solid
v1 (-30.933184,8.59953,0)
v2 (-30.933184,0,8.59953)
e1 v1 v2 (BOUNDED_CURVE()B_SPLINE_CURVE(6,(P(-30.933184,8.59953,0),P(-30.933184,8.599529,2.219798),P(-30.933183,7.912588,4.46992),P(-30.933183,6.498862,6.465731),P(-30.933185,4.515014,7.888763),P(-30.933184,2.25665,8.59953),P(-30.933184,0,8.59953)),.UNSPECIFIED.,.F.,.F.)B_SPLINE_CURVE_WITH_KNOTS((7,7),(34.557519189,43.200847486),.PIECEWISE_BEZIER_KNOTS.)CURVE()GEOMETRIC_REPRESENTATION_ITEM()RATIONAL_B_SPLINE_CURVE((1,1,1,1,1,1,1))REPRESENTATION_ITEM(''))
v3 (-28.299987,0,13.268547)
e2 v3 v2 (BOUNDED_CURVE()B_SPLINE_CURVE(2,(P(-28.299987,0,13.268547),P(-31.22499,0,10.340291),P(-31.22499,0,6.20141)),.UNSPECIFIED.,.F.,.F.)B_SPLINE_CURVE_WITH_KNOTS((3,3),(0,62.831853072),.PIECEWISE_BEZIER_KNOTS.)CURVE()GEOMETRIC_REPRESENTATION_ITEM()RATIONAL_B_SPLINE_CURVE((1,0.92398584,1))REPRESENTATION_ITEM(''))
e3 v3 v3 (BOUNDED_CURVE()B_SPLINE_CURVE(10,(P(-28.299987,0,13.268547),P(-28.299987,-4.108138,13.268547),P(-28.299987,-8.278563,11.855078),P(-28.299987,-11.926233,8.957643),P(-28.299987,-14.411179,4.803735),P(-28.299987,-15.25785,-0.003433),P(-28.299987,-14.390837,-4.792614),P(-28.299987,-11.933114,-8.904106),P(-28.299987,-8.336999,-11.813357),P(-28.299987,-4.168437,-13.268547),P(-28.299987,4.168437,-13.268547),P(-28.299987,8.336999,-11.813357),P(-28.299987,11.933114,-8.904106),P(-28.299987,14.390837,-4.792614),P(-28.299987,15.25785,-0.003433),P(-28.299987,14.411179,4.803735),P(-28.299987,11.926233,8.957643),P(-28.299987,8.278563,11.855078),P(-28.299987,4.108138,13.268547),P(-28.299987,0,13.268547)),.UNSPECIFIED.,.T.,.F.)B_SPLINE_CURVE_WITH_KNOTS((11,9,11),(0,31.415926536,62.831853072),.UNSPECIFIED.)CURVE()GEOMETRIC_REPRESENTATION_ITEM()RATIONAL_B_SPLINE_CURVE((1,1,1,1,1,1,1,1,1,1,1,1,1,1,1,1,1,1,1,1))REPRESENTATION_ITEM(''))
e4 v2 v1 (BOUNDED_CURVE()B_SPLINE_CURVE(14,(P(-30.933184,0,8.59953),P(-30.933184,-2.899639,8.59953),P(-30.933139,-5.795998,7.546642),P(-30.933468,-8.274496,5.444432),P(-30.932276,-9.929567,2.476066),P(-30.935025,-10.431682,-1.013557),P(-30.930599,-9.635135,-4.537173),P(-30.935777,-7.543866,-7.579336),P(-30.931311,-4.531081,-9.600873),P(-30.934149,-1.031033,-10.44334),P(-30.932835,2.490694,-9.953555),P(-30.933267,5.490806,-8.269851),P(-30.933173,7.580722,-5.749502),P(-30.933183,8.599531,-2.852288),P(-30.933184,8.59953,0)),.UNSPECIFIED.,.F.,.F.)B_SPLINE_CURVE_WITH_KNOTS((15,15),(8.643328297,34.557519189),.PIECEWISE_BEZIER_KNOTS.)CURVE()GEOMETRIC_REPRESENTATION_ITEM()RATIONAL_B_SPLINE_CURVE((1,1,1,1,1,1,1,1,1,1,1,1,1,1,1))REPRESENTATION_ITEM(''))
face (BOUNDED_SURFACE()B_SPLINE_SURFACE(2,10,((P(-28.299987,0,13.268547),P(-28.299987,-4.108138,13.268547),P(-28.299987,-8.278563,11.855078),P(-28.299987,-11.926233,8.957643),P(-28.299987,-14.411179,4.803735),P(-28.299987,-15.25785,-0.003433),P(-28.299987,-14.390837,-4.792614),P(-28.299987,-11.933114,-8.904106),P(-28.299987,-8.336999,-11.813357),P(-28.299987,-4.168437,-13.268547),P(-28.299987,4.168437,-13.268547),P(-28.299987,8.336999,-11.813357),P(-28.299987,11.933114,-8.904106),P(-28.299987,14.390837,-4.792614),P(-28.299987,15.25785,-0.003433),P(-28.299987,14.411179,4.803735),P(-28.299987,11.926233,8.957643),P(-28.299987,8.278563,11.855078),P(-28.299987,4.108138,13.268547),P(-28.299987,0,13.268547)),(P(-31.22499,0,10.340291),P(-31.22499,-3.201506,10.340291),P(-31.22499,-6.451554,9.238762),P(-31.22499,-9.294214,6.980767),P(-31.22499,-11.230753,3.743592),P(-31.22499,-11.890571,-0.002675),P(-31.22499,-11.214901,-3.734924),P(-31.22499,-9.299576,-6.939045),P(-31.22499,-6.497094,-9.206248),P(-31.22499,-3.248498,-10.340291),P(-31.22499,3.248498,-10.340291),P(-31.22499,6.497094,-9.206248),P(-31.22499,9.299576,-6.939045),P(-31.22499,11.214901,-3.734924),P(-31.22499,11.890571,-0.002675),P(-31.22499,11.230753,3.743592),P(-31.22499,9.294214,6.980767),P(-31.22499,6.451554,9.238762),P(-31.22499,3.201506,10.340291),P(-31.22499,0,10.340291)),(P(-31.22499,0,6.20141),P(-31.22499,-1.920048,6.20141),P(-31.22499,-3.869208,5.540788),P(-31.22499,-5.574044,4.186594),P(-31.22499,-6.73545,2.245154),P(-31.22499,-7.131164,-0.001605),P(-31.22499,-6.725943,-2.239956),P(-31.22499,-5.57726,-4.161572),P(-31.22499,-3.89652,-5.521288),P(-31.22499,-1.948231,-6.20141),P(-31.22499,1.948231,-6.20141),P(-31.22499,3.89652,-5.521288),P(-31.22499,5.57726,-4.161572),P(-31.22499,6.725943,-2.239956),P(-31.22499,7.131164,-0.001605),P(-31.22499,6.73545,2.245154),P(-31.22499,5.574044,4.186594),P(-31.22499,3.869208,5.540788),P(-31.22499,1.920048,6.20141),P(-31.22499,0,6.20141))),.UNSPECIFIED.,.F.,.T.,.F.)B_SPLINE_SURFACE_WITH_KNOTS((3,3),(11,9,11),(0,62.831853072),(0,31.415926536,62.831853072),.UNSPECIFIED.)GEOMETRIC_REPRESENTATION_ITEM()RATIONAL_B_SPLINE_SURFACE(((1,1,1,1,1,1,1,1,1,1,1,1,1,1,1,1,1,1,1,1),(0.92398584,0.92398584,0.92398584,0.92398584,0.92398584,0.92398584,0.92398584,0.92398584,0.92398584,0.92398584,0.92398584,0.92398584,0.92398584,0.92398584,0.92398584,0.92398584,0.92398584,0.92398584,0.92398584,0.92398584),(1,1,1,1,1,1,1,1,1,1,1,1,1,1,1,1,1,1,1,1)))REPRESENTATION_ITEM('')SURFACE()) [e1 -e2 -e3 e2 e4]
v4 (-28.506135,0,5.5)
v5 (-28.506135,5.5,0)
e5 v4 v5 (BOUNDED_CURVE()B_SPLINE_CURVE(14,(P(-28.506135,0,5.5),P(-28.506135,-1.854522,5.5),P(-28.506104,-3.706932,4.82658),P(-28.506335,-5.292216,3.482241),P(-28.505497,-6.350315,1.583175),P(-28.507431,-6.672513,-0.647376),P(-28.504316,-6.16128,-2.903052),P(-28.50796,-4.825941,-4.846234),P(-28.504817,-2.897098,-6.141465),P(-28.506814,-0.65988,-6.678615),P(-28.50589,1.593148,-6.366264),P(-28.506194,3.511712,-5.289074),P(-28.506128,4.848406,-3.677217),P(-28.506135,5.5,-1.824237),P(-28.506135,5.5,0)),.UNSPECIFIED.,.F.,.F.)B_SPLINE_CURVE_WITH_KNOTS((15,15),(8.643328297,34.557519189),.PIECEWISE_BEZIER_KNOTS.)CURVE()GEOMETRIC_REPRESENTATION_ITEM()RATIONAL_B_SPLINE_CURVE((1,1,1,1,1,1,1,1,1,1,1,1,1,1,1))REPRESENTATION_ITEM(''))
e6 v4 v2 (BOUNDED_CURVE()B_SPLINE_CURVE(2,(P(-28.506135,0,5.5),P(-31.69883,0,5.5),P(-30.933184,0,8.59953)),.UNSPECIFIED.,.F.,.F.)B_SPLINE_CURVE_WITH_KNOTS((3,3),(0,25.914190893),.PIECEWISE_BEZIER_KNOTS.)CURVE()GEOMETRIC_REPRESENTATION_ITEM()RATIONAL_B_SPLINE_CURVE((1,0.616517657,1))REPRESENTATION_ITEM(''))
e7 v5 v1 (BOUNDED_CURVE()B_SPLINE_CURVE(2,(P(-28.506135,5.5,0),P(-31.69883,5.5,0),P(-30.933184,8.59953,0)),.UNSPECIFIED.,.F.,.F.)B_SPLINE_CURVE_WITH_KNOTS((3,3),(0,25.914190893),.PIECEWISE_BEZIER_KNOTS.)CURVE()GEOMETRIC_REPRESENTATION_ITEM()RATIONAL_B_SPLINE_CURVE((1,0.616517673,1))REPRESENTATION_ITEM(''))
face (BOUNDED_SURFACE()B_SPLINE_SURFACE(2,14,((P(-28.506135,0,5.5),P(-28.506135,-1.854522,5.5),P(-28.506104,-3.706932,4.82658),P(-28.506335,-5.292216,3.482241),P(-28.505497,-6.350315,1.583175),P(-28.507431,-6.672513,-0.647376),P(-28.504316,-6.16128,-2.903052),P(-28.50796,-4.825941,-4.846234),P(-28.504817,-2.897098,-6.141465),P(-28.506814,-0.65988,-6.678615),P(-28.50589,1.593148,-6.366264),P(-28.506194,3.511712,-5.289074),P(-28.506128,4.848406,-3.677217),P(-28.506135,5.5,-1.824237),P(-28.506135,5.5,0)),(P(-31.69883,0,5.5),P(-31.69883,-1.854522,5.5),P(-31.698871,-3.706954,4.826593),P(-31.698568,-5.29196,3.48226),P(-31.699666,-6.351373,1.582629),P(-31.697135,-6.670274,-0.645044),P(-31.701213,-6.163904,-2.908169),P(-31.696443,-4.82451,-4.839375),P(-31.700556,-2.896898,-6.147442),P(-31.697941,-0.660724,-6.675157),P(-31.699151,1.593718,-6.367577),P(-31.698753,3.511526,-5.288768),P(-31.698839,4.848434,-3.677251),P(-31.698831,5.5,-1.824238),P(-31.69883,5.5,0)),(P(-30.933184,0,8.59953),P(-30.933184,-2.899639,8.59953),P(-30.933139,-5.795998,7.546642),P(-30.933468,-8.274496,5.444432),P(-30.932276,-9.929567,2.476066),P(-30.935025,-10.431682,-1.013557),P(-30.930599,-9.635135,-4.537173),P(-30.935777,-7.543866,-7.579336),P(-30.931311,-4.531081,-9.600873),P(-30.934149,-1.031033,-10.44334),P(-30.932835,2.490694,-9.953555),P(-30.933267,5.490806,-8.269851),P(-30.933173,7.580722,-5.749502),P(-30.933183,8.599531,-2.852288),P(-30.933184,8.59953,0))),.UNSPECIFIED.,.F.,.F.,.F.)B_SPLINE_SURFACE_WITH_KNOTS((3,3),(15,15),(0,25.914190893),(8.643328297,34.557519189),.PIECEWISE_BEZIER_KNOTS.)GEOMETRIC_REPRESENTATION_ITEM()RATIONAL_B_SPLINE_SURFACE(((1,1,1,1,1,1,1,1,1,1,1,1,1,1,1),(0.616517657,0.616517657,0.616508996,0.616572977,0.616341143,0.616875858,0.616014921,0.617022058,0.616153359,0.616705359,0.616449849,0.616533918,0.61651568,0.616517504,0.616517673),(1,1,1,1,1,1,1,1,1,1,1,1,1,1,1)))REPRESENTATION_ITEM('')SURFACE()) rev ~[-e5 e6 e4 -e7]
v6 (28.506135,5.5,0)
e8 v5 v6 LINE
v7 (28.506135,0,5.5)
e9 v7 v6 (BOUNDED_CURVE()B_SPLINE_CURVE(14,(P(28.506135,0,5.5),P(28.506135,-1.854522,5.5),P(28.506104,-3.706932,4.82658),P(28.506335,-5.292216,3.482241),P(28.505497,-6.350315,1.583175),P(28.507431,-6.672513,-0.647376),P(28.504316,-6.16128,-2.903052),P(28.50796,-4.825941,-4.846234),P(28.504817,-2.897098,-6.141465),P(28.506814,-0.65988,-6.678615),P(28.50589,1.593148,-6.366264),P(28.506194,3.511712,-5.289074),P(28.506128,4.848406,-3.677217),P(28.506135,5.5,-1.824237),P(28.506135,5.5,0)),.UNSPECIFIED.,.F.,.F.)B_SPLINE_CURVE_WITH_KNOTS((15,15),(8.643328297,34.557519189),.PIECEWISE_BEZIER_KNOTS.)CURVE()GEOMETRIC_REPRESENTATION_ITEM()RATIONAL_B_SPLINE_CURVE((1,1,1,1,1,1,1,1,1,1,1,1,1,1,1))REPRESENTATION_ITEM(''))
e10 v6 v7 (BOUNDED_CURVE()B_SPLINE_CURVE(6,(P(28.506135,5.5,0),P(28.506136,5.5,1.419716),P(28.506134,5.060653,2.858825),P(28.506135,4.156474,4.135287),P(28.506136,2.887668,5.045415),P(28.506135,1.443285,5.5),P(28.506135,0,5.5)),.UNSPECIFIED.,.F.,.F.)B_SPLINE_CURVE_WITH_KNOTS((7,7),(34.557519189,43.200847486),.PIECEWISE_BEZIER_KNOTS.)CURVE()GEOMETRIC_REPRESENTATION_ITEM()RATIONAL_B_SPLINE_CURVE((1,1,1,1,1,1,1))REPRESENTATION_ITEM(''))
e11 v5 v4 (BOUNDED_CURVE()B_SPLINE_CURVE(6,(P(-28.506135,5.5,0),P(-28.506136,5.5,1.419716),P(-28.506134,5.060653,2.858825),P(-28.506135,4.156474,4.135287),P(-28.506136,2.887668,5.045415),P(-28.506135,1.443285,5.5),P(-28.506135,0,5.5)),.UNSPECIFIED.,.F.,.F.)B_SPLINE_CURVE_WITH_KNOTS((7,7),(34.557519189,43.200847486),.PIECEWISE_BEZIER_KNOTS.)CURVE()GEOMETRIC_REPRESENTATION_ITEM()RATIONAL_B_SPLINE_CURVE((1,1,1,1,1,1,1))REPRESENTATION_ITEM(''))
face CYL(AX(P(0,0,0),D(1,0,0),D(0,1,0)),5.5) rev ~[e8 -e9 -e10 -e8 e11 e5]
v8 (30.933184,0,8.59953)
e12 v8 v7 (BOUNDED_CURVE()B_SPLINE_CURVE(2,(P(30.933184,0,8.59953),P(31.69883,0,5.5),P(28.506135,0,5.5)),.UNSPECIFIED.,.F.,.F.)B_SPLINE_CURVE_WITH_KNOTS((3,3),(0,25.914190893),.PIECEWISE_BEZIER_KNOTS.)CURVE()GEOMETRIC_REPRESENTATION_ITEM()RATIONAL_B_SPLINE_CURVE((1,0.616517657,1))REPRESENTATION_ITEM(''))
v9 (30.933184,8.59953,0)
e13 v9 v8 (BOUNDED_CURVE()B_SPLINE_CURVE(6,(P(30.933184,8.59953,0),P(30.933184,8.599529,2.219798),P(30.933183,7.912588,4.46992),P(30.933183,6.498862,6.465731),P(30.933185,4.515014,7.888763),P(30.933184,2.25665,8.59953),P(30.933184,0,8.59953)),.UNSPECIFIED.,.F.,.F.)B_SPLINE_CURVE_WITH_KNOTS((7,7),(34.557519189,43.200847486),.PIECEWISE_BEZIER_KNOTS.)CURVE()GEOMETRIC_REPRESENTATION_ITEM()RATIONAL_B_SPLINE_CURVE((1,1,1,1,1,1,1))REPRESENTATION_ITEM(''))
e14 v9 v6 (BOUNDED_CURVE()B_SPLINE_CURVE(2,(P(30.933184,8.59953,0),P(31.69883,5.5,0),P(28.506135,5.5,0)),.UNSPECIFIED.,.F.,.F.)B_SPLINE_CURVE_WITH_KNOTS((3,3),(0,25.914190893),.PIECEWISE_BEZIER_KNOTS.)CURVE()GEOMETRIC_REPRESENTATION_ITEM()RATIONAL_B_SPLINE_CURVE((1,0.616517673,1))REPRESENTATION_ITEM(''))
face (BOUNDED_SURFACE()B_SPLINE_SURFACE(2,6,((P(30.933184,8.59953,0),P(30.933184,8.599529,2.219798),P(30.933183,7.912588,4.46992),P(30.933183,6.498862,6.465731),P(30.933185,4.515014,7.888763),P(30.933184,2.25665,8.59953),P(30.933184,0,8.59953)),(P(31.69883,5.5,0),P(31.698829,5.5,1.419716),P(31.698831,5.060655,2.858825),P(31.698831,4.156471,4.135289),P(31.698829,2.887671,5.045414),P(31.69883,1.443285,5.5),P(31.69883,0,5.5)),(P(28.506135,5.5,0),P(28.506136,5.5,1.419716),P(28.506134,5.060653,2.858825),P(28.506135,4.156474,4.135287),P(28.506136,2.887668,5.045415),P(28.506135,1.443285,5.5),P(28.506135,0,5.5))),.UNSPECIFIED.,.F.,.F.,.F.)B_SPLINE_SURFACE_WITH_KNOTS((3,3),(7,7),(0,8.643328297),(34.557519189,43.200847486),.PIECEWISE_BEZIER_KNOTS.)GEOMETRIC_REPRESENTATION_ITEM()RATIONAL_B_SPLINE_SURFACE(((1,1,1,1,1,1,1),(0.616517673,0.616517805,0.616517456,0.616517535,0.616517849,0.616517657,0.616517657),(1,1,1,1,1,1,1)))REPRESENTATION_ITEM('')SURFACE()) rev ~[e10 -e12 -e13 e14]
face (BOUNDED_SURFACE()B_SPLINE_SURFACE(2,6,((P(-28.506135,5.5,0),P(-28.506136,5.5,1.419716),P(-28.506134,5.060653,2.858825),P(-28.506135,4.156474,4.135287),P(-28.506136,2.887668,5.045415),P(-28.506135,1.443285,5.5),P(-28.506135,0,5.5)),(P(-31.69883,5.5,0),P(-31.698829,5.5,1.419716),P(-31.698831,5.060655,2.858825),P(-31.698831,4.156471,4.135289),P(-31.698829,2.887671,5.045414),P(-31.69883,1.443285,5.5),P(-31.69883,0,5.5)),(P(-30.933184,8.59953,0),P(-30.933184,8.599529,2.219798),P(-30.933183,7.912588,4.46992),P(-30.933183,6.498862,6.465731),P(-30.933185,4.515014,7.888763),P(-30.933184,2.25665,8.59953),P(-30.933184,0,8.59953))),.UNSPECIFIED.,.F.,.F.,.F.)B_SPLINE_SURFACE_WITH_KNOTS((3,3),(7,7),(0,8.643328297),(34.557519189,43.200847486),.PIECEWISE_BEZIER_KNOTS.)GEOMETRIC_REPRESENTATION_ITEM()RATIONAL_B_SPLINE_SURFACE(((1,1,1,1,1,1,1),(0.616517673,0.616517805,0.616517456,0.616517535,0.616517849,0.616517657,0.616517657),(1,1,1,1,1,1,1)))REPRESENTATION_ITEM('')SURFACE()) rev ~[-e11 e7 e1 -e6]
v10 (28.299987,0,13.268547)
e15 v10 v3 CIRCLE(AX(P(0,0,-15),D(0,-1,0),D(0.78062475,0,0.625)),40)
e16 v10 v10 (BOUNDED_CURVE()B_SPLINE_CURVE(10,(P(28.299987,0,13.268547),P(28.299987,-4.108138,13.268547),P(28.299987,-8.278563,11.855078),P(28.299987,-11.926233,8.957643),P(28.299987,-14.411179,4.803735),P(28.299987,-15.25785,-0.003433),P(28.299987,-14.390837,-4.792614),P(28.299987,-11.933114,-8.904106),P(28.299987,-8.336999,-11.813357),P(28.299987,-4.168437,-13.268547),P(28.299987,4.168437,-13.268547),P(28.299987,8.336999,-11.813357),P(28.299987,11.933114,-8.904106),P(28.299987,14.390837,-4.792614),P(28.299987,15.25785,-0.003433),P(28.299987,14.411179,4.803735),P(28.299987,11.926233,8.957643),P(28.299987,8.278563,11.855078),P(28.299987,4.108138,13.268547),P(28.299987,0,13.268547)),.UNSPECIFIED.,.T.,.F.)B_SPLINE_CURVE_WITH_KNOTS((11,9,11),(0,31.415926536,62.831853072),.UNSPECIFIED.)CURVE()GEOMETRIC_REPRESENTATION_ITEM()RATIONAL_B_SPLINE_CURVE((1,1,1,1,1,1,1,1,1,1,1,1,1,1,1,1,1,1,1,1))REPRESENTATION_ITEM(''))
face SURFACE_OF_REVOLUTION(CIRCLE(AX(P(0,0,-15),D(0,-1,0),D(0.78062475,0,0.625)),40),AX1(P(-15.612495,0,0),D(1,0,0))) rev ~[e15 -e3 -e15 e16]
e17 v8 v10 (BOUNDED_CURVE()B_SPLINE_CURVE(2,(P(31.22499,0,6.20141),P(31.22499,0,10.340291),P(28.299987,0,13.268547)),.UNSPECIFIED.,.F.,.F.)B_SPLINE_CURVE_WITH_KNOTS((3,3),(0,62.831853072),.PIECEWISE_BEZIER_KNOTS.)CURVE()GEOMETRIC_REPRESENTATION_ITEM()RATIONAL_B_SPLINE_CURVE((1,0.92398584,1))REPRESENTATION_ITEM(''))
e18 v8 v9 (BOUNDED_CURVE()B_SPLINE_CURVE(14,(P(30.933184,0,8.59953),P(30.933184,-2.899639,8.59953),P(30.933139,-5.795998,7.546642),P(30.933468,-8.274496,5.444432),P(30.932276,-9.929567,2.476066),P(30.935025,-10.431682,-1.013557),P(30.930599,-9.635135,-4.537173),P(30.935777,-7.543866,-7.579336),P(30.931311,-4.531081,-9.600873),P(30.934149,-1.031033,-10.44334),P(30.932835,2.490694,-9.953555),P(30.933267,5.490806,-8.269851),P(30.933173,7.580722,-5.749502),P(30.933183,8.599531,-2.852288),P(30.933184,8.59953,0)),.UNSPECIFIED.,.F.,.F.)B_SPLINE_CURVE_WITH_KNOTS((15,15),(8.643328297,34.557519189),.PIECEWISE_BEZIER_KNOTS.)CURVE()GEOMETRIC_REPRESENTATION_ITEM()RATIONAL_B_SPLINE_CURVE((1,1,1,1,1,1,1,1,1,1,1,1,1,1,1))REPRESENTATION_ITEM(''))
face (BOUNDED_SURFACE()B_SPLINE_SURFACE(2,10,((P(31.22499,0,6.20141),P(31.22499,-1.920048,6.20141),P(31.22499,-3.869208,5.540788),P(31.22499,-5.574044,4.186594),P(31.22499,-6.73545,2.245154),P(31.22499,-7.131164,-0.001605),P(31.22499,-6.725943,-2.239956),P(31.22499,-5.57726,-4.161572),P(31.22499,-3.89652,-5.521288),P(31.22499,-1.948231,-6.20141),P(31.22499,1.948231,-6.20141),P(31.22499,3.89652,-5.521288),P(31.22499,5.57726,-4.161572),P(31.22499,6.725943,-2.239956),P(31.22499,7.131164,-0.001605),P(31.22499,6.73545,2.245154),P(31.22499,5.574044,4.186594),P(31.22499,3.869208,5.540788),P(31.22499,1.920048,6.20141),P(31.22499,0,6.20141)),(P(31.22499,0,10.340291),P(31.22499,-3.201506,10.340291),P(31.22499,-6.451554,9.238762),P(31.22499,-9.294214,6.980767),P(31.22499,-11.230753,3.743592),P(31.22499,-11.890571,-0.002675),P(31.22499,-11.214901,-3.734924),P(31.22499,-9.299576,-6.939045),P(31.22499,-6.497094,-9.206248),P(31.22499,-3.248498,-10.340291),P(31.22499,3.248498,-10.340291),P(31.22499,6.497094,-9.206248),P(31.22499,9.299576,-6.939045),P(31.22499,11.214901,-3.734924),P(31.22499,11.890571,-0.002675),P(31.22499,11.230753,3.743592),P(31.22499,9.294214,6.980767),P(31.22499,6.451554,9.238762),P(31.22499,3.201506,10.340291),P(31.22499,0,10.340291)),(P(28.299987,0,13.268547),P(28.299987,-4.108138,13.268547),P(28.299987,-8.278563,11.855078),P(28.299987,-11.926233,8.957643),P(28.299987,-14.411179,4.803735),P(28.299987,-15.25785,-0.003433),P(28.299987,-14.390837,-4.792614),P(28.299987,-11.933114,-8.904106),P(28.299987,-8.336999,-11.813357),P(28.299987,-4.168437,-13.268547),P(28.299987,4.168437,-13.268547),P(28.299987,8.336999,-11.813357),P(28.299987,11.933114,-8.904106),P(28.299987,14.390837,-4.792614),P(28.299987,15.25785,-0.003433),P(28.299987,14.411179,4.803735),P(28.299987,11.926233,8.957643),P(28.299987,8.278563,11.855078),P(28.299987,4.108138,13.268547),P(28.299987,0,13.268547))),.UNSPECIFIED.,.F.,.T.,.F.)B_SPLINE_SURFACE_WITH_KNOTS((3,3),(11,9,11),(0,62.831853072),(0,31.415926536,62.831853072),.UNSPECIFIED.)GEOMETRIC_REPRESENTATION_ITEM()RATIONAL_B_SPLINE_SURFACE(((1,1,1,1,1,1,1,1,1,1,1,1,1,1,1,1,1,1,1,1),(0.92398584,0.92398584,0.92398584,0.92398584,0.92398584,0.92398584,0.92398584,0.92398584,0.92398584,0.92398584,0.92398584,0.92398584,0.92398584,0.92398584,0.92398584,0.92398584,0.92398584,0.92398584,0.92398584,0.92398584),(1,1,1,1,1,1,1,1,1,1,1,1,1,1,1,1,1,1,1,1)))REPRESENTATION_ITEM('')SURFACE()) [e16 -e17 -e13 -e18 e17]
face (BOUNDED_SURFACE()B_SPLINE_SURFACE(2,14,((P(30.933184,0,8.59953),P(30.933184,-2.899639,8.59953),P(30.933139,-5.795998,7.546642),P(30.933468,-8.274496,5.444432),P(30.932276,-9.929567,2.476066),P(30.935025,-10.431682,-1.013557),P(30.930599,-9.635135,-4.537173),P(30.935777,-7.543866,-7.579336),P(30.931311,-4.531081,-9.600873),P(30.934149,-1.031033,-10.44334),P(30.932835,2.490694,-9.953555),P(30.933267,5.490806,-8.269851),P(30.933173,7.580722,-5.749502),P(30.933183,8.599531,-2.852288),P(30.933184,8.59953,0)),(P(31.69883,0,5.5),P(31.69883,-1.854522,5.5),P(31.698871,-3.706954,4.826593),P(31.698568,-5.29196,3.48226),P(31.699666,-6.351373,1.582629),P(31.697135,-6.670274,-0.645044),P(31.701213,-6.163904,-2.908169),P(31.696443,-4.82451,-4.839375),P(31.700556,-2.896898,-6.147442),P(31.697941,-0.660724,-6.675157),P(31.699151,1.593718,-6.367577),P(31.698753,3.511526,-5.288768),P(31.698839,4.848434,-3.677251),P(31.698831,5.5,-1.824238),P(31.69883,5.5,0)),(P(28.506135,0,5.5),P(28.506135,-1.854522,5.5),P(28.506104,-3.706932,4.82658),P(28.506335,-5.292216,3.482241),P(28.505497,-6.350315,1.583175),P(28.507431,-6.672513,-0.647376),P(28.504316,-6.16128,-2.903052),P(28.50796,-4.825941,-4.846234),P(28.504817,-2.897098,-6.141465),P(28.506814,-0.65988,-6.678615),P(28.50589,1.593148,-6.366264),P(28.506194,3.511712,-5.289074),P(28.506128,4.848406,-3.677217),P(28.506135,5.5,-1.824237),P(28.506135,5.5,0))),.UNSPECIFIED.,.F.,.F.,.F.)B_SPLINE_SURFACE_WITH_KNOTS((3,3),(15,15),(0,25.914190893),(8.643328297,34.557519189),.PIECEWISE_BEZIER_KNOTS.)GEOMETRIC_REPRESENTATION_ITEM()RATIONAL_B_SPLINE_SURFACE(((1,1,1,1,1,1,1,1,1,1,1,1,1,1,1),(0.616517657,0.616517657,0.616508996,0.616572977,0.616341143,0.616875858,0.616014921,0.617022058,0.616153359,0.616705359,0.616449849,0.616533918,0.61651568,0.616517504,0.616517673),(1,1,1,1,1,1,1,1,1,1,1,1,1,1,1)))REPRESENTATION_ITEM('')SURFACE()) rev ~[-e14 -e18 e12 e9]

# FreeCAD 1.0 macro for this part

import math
import FreeCAD as App
import Part
import Sketcher
from FreeCAD import Vector
Q = App.Units.Quantity


def edges_at(feature, points):
    """Names of the edges that pass closest to the given points."""
    edges = feature.Shape.Edges
    near = lambda p: min(range(len(edges)), key=lambda i: edges[i].distToShape(Part.Vertex(*p))[0])
    return sorted({f"Edge{near(p) + 1}" for p in points})

doc = App.newDocument("Part")
body = doc.addObject("PartDesign::Body", "Body")

# Sketch on XZ plane
sketch1 = body.newObject("Sketcher::SketchObject", "Sketch")
sketch1.AttachmentSupport = (doc.getObject("XZ_Plane"), [""])
sketch1.MapMode = "FlatFace"
sketch1.addGeometry(Part.LineSegment(Vector(31, 0, 0), Vector(31, 10, 0)), False)
sketch1.addGeometry(Part.ArcOfCircle(Part.Circle(Vector(0, -15, 0), Vector(0, 0, 1), 40), math.radians(39), math.radians(141)), False)
sketch1.addGeometry(Part.LineSegment(Vector(-31, 10, 0), Vector(-31, 0, 0)), False)
sketch1.addGeometry(Part.LineSegment(Vector(-31, 0, 0), Vector(31, 0, 0)), False)
sketch1.addConstraint(Sketcher.Constraint("Coincident", 0, 2, 1, 1))
sketch1.addConstraint(Sketcher.Constraint("Coincident", 1, 2, 2, 1))
sketch1.addConstraint(Sketcher.Constraint("Coincident", 2, 2, 3, 1))
sketch1.addConstraint(Sketcher.Constraint("Coincident", 3, 2, 0, 1))
sketch1.addConstraint(Sketcher.Constraint("Vertical", 0))
sketch1.addConstraint(Sketcher.Constraint("Vertical", 2))
sketch1.addConstraint(Sketcher.Constraint("Horizontal", 3))
sketch1.addConstraint(Sketcher.Constraint("Symmetric", 2, 2, 3, 2, -1, 1))
sketch1.addConstraint(Sketcher.Constraint("PointOnObject", 1, 3, -2))
sketch1.addConstraint(Sketcher.Constraint("Radius", 1, Q("40 mm")))
sketch1.addConstraint(Sketcher.Constraint("DistanceY", 0, 1, 0, 2, Q("10 mm")))
sketch1.addConstraint(Sketcher.Constraint("DistanceY", 1, 3, -1, 1, Q("15 mm")))
revolution = body.newObject("PartDesign::Revolution", "Revolution")
revolution.Profile = sketch1
revolution.ReferenceAxis = (sketch1, ["H_Axis"])
revolution.Angle = 360
doc.recompute()

fillet = body.newObject("PartDesign::Fillet", "Fillet")
fillet.Base = (revolution, edges_at(revolution, [(-31.225, 0, -10), (31.225, 0, -10)]))
fillet.Radius = 10

# Sketch on YZ plane
sketch2 = body.newObject("Sketcher::SketchObject", "Sketch001")
sketch2.AttachmentSupport = (doc.getObject("YZ_Plane"), [""])
sketch2.MapMode = "FlatFace"
sketch2.addGeometry(Part.Circle(Vector(0, 0, 0), Vector(0, 0, 1), 6), False)
sketch2.addConstraint(Sketcher.Constraint("Coincident", 0, 3, -1, 1))
sketch2.addConstraint(Sketcher.Constraint("Diameter", 0, Q("11 mm")))
pocket1 = body.newObject("PartDesign::Pocket", "Pocket")
pocket1.Profile = sketch2
pocket1.Length = 200
pocket1.Midplane = True
doc.recompute()

fillet2 = body.newObject("PartDesign::Fillet", "Fillet001")
fillet2.Base = (pocket1, edges_at(pocket1, [(-31.225, -5.5, 0), (31.225, -5.5, 0)]))
fillet2.Radius = 2.5

doc.recompute()
